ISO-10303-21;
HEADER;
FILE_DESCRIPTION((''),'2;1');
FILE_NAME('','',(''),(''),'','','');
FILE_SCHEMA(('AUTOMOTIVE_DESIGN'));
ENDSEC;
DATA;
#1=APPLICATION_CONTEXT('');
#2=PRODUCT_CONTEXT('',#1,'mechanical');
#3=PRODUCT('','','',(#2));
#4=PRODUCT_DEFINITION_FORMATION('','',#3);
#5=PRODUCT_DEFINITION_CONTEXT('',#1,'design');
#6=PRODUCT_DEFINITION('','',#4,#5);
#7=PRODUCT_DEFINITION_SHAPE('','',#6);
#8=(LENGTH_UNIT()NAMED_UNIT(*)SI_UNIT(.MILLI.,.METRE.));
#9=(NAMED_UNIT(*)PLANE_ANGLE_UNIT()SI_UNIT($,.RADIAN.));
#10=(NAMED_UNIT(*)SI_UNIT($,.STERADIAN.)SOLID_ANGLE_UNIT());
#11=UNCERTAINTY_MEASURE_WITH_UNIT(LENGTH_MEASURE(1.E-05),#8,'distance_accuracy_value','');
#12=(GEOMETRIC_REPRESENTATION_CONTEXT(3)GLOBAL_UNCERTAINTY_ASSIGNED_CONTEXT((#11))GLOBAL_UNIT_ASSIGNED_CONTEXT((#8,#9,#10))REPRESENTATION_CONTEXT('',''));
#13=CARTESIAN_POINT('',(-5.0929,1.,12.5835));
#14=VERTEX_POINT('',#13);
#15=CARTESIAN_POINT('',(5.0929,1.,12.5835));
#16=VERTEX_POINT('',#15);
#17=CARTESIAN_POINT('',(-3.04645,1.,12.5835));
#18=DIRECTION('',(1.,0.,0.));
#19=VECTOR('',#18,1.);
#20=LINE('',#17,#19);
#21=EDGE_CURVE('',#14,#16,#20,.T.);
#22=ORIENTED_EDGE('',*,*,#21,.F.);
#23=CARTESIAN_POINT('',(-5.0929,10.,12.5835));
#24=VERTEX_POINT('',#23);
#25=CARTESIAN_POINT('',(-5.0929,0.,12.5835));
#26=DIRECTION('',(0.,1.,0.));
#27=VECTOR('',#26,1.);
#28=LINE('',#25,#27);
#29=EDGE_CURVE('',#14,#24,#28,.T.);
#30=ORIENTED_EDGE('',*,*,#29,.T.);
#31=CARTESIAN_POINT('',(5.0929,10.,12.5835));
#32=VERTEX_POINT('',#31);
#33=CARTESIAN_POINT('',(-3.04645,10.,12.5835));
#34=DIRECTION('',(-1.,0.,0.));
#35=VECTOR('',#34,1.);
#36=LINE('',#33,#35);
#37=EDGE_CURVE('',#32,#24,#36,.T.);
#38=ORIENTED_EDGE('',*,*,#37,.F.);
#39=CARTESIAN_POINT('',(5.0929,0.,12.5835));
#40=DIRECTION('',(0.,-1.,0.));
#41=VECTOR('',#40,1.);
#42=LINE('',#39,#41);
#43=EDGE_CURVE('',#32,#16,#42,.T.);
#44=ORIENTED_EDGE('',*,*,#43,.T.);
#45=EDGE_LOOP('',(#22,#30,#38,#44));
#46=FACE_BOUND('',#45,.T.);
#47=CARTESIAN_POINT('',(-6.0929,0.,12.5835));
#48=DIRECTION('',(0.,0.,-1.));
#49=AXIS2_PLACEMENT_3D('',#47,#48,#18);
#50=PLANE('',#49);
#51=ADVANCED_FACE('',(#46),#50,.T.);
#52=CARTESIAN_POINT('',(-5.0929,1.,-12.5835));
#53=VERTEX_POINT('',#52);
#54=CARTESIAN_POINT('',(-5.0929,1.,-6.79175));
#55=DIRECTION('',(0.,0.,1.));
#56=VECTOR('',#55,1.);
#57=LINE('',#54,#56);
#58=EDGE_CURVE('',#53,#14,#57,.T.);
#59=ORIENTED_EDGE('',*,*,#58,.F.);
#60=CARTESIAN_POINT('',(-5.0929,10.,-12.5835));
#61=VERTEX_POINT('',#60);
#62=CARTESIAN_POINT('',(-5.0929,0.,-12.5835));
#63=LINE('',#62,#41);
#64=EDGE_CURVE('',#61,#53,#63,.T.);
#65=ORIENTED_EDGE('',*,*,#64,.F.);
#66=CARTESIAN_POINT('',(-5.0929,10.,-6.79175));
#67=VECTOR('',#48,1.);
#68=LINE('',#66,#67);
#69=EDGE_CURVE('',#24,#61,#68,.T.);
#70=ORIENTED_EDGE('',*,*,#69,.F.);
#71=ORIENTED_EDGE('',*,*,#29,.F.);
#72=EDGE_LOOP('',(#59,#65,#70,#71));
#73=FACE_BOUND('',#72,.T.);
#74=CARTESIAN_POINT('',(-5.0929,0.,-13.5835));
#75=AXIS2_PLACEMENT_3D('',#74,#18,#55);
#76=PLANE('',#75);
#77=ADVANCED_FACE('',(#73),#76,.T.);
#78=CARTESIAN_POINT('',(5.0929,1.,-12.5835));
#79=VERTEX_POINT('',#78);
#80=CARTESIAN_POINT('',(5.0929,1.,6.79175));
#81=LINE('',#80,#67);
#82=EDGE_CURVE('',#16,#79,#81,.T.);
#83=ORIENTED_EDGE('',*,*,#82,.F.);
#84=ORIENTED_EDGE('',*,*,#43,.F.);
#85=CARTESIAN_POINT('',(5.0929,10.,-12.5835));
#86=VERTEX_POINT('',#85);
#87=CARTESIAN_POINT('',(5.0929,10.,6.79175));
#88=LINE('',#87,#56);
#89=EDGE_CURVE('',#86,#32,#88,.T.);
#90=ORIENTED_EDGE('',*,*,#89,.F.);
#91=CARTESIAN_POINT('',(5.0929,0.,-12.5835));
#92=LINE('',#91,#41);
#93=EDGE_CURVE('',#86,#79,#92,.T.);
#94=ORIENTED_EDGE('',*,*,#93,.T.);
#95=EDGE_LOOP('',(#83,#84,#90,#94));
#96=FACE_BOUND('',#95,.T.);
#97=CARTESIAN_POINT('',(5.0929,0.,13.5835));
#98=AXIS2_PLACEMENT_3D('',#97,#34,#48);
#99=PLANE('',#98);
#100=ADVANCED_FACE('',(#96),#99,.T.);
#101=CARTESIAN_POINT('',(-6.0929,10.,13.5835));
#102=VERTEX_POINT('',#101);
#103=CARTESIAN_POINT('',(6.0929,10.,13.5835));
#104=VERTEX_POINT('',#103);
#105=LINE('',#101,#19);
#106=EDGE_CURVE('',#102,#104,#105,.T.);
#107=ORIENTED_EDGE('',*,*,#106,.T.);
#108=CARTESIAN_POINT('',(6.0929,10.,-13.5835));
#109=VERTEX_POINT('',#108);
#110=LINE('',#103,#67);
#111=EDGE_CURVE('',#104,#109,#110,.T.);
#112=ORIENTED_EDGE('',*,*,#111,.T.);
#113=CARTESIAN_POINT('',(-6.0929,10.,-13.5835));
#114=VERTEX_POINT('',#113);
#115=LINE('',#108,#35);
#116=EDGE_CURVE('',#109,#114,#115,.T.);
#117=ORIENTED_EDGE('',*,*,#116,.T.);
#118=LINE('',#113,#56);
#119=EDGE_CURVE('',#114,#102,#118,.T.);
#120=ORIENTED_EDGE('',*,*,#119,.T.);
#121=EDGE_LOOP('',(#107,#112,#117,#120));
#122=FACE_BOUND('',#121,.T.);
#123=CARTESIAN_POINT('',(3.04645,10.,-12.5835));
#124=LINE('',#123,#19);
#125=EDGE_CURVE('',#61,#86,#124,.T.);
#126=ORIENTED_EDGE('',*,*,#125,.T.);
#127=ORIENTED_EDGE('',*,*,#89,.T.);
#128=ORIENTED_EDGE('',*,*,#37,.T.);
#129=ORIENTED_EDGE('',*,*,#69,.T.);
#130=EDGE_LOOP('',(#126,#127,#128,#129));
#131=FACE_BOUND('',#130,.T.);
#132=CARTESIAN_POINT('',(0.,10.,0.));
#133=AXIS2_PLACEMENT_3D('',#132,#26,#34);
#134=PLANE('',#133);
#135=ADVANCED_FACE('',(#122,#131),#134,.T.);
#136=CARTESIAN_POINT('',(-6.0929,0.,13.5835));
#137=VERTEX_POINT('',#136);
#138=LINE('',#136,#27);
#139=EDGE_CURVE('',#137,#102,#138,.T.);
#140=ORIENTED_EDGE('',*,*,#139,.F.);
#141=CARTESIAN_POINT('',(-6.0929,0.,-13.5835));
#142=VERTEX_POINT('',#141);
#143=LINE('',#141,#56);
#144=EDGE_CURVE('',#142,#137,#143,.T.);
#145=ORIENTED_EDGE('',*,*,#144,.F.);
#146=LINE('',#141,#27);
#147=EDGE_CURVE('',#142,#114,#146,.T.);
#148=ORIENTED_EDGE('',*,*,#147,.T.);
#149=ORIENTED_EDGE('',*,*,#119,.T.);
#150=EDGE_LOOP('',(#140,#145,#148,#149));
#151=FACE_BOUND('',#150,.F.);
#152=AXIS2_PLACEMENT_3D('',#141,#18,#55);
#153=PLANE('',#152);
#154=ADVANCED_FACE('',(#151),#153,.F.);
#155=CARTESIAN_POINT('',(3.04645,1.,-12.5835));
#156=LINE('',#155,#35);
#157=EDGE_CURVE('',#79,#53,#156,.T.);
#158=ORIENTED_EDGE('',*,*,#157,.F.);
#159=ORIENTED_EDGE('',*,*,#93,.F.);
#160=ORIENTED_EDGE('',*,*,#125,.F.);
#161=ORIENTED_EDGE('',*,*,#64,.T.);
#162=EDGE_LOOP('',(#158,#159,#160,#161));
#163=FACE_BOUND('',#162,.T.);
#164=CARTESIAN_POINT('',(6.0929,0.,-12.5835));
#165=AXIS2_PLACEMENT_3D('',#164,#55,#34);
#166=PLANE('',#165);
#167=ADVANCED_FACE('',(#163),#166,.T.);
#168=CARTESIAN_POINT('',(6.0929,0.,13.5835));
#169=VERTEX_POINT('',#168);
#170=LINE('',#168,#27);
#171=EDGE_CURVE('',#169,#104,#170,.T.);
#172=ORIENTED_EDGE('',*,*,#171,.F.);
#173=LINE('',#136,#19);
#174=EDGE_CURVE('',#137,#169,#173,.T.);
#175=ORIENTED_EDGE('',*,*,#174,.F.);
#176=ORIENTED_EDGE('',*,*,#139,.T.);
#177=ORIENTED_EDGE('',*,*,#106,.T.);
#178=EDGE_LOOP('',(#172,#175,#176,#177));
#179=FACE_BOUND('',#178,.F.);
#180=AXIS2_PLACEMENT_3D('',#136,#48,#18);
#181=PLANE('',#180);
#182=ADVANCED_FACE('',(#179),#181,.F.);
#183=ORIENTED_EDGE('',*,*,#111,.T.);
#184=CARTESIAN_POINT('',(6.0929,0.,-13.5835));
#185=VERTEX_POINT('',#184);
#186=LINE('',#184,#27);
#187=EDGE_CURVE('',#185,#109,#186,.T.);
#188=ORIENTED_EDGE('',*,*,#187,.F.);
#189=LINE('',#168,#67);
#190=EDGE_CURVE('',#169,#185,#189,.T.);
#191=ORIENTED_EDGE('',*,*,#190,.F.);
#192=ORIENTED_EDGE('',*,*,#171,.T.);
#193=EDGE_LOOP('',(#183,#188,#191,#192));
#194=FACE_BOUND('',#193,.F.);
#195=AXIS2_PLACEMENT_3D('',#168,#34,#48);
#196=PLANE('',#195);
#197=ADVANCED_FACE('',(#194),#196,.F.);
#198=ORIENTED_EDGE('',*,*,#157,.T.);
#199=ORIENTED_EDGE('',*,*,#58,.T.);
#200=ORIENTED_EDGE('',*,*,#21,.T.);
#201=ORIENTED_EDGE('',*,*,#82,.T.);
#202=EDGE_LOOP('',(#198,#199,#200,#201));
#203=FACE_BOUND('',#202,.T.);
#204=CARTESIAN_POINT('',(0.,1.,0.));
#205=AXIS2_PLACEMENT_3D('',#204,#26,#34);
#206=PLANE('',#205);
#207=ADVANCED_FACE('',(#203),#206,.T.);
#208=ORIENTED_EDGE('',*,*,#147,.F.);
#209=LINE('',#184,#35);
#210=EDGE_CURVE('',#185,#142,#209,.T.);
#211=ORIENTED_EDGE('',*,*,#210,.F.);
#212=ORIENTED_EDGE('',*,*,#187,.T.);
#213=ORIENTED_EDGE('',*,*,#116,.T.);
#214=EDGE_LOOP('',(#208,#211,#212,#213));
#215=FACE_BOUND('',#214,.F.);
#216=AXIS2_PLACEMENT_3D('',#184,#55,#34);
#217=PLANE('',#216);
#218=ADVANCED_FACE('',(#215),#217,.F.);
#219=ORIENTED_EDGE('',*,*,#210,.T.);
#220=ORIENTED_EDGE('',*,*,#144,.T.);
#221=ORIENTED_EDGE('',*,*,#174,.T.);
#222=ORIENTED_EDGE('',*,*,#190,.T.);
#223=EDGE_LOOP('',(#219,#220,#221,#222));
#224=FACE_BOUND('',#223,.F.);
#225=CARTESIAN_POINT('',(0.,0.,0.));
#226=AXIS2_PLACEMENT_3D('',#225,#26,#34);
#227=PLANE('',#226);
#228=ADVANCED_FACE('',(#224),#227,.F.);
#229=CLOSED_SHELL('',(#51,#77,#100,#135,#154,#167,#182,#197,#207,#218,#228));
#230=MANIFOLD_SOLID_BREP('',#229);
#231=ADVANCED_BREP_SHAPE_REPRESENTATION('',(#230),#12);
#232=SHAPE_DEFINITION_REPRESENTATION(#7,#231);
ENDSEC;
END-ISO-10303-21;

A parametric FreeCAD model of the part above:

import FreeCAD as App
import Part
import Sketcher


def faces_at(feature, points):
    """Names of the faces that lie closest to the given points."""
    faces = feature.Shape.Faces
    near = lambda p: min(range(len(faces)), key=lambda i: faces[i].distToShape(Part.Vertex(*p))[0])
    return sorted({f"Face{near(p) + 1}" for p in points})


def add_polygon(sketch, points):
    """Adds a closed chain of lines whose ends are joined by coincident constraints."""
    first, n = sketch.GeometryCount, len(points)
    for a, b in zip(points, points[1:] + points[:1]):
        sketch.addGeometry(Part.LineSegment(App.Vector(*a, 0), App.Vector(*b, 0)), False)
    for i in range(n):
        sketch.addConstraint(Sketcher.Constraint("Coincident", first + i, 2, first + (i + 1) % n, 1))

doc = App.newDocument("Part")
body = doc.addObject("PartDesign::Body", "Body")

# Sketch on XZ plane
sketch1 = body.newObject("Sketcher::SketchObject", "Sketch")
sketch1.AttachmentSupport = (doc.getObject("XZ_Plane"), [""])
sketch1.MapMode = "FlatFace"
add_polygon(sketch1, [(-6, -14), (-6, 14), (6, 14), (6, -14)])  # lines 0-3
sketch1.addConstraint([
    Sketcher.Constraint("Vertical", 0),
    Sketcher.Constraint("Horizontal", 1),
    Sketcher.Constraint("Vertical", 2),
    Sketcher.Constraint("Horizontal", 3),
    Sketcher.Constraint("Symmetric", 0, 2, 2, 2, -1, 1),
    Sketcher.Constraint("DistanceY", 0, 1, 0, 2, 27.167),
    Sketcher.Constraint("DistanceX", 1, 1, 1, 2, 12.1858),
])
pad1 = body.newObject("PartDesign::Pad", "Pad")
pad1.Profile = sketch1
pad1.Length = 10
pad1.Reversed = True
doc.recompute()

thickness = body.newObject("PartDesign::Thickness", "Thickness")
thickness.Base = (pad1, faces_at(pad1, [(2.031, 10, -4.528)]))
thickness.Value = 1
thickness.Reversed = True
thickness.Join = "Intersection"

doc.recompute()
